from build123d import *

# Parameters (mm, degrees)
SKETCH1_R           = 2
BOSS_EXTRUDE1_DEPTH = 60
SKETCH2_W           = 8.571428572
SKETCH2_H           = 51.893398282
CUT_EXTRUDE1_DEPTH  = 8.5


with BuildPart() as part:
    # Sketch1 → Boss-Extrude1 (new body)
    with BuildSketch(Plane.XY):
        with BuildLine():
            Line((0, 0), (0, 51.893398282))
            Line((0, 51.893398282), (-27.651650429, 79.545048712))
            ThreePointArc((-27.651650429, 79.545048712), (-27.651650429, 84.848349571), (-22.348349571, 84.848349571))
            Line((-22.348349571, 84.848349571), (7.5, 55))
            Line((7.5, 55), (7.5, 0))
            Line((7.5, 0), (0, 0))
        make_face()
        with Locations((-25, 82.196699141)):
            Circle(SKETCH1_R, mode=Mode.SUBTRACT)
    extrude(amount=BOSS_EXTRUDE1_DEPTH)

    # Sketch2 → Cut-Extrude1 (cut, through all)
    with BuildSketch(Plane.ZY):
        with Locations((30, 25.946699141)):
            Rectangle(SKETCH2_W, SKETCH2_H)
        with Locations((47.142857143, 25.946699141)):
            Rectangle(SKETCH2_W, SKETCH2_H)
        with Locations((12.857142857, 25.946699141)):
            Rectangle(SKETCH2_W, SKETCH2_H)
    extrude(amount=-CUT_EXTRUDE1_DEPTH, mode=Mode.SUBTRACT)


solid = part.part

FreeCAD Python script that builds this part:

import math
import FreeCAD as App
import Part
import Sketcher
Q = App.Units.Quantity

doc = App.newDocument("Part")
body = doc.addObject("PartDesign::Body", "Body")

# Sketch on XY plane
sketch1 = doc.addObject("Sketcher::SketchObject", "Sketch")
body.addObject(sketch1)
sketch1.AttachmentSupport = (doc.XY_Plane, [""])
sketch1.MapMode = "FlatFace"
sketch1.addGeometry([
    Part.LineSegment(App.Vector(0, 51.893398, 0), App.Vector(0, 0, 0)),  # 0
    Part.LineSegment(App.Vector(0, 0, 0), App.Vector(7.5, 0, 0)),  # 1
    Part.LineSegment(App.Vector(7.5, 0, 0), App.Vector(7.5, 55, 0)),  # 2
    Part.LineSegment(App.Vector(7.5, 55, 0), App.Vector(-22.34835, 84.84835, 0)),  # 3
    Part.ArcOfCircle(Part.Circle(App.Vector(-25, 82.196699, 0), App.Vector(0, 0, 1), 3.75), math.radians(45), math.radians(225)),  # 4
    Part.LineSegment(App.Vector(-27.65165, 79.545049, 0), App.Vector(0, 51.893398, 0)),  # 5
    Part.Circle(App.Vector(-25, 82.196699, 0), App.Vector(0, 0, 1), 2),  # 6
], False)
sketch1.addConstraint([
    Sketcher.Constraint("Coincident", 0, 2, 1, 1),
    Sketcher.Constraint("Coincident", 1, 2, 2, 1),
    Sketcher.Constraint("Coincident", 2, 2, 3, 1),
    Sketcher.Constraint("Tangent", 3, 2, 4, 1),
    Sketcher.Constraint("Tangent", 4, 2, 5, 1),
    Sketcher.Constraint("Coincident", 5, 2, 0, 1),
    Sketcher.Constraint("Vertical", 0),
    Sketcher.Constraint("Horizontal", 1),
    Sketcher.Constraint("Vertical", 2),
    Sketcher.Constraint("Coincident", 0, 2, -1, 1),
    Sketcher.Constraint("Coincident", 6, 3, 4, 3),
    Sketcher.Constraint("Parallel", 3, 5),
    Sketcher.Constraint("Diameter", 6, Q("4 mm")),
    Sketcher.Constraint("DistanceY", 2, 1, 2, 2, Q("55 mm")),
    Sketcher.Constraint("Angle", 3, Q("135 deg")),
    Sketcher.Constraint("Radius", 4, Q("3.75 mm")),
    Sketcher.Constraint("DistanceX", 1, 1, 1, 2, Q("7.5 mm")),
    Sketcher.Constraint("DistanceX", 4, 3, -1, 1, Q("25 mm")),
])
pad1 = doc.addObject("PartDesign::Pad", "Pad")
body.addObject(pad1)
pad1.Profile = sketch1
pad1.Length = 60

# Sketch on YZ plane
sketch2 = doc.addObject("Sketcher::SketchObject", "Sketch001")
body.addObject(sketch2)
sketch2.AttachmentSupport = (doc.YZ_Plane, [""])
sketch2.MapMode = "FlatFace"
sketch2.addGeometry([
    Part.LineSegment(App.Vector(51.893398, 25.714286, 0), App.Vector(0, 25.714286, 0)),  # 0
    Part.LineSegment(App.Vector(0, 25.714286, 0), App.Vector(0, 34.285714, 0)),  # 1
    Part.LineSegment(App.Vector(0, 34.285714, 0), App.Vector(51.893398, 34.285714, 0)),  # 2
    Part.LineSegment(App.Vector(51.893398, 34.285714, 0), App.Vector(51.893398, 25.714286, 0)),  # 3
    Part.LineSegment(App.Vector(51.893398, 42.857143, 0), App.Vector(0, 42.857143, 0)),  # 4
    Part.LineSegment(App.Vector(0, 42.857143, 0), App.Vector(0, 51.428571, 0)),  # 5
    Part.LineSegment(App.Vector(0, 51.428571, 0), App.Vector(51.893398, 51.428571, 0)),  # 6
    Part.LineSegment(App.Vector(51.893398, 51.428571, 0), App.Vector(51.893398, 42.857143, 0)),  # 7
    Part.LineSegment(App.Vector(51.893398, 8.571429, 0), App.Vector(0, 8.571429, 0)),  # 8
    Part.LineSegment(App.Vector(0, 8.571429, 0), App.Vector(0, 17.142857, 0)),  # 9
    Part.LineSegment(App.Vector(0, 17.142857, 0), App.Vector(51.893398, 17.142857, 0)),  # 10
    Part.LineSegment(App.Vector(51.893398, 17.142857, 0), App.Vector(51.893398, 8.571429, 0)),  # 11
], False)
sketch2.addConstraint([
    Sketcher.Constraint("Coincident", 0, 2, 1, 1),
    Sketcher.Constraint("Coincident", 1, 2, 2, 1),
    Sketcher.Constraint("Coincident", 2, 2, 3, 1),
    Sketcher.Constraint("Coincident", 3, 2, 0, 1),
    Sketcher.Constraint("Coincident", 4, 2, 5, 1),
    Sketcher.Constraint("Coincident", 5, 2, 6, 1),
    Sketcher.Constraint("Coincident", 6, 2, 7, 1),
    Sketcher.Constraint("Coincident", 7, 2, 4, 1),
    Sketcher.Constraint("Coincident", 8, 2, 9, 1),
    Sketcher.Constraint("Coincident", 9, 2, 10, 1),
    Sketcher.Constraint("Coincident", 10, 2, 11, 1),
    Sketcher.Constraint("Coincident", 11, 2, 8, 1),
    Sketcher.Constraint("Horizontal", 0),
    Sketcher.Constraint("Vertical", 1),
    Sketcher.Constraint("Horizontal", 2),
    Sketcher.Constraint("Vertical", 3),
    Sketcher.Constraint("Horizontal", 4),
    Sketcher.Constraint("Vertical", 5),
    Sketcher.Constraint("Horizontal", 6),
    Sketcher.Constraint("Vertical", 7),
    Sketcher.Constraint("Horizontal", 8),
    Sketcher.Constraint("Vertical", 9),
    Sketcher.Constraint("Horizontal", 10),
    Sketcher.Constraint("Vertical", 11),
    Sketcher.Constraint("PointOnObject", 0, 2, -2),
    Sketcher.Constraint("PointOnObject", 4, 2, -2),
    Sketcher.Constraint("PointOnObject", 8, 2, -2),
    Sketcher.Constraint("Vertical", 3, 2, 6, 2),
    Sketcher.Constraint("Vertical", 7, 2, 10, 2),
    Sketcher.Constraint("Equal", 3, 5),
    Sketcher.Constraint("Equal", 7, 9),
    Sketcher.Constraint("DistanceX", 0, 2, 0, 1, Q("51.893398 mm")),
    Sketcher.Constraint("DistanceY", 1, 1, 1, 2, Q("8.571429 mm")),
    Sketcher.Constraint("DistanceY", -1, 1, 5, 2, Q("51.428571 mm")),
    Sketcher.Constraint("DistanceY", -1, 1, 8, 2, Q("8.571429 mm")),
    Sketcher.Constraint("DistanceY", 1, 2, 4, 2, Q("8.571429 mm")),
])
pocket1 = doc.addObject("PartDesign::Pocket", "Pocket")
body.addObject(pocket1)
pocket1.Profile = sketch2
pocket1.Type = "ThroughAll"
pocket1.Reversed = True

doc.recompute()
